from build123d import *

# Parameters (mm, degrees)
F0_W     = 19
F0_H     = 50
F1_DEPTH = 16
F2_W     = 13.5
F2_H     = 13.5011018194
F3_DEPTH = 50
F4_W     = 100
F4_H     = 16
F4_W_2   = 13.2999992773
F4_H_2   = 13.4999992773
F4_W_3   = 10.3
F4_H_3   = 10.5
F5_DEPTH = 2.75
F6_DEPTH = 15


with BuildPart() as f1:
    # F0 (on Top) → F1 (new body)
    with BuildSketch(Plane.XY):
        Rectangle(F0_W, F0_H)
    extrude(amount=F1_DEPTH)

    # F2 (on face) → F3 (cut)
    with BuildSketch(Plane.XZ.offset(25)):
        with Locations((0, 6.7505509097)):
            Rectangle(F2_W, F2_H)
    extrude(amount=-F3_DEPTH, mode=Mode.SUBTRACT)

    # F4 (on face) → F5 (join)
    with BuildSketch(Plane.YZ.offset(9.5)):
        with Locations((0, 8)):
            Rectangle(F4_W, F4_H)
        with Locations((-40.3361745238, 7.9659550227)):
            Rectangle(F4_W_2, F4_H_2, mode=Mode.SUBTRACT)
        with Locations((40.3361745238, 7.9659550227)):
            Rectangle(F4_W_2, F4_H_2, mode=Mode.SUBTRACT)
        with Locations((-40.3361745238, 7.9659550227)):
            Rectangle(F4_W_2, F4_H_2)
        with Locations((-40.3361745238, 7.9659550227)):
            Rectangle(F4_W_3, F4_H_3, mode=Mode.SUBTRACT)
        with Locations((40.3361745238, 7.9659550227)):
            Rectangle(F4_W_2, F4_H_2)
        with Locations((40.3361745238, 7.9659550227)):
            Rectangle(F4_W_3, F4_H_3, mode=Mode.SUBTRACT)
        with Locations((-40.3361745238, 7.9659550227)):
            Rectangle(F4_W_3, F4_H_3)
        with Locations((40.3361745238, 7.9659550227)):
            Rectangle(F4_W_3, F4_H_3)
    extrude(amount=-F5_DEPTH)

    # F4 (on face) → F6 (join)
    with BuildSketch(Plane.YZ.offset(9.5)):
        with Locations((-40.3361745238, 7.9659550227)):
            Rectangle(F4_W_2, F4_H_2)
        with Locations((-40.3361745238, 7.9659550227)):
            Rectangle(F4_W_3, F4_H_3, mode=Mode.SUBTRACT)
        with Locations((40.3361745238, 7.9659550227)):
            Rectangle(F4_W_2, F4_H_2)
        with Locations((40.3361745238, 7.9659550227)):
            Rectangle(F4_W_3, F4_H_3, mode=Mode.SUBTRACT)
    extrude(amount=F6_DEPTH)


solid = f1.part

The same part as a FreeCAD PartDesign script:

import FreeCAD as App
import Part
import Sketcher

V = App.Vector
Q = App.Units.Quantity


def add_polygon(sketch, points):
    """Adds a closed chain of lines whose ends are joined by coincident constraints."""
    first, n = sketch.GeometryCount, len(points)
    for a, b in zip(points, points[1:] + points[:1]):
        sketch.addGeometry(Part.LineSegment(App.Vector(*a, 0), App.Vector(*b, 0)), False)
    for i in range(n):
        sketch.addConstraint(Sketcher.Constraint("Coincident", first + i, 2, first + (i + 1) % n, 1))

doc = App.newDocument("Part")
body = doc.addObject("PartDesign::Body", "Body")

# Sketch on XY plane
sketch1 = body.newObject("Sketcher::SketchObject", "Sketch")
sketch1.AttachmentSupport = (doc.getObject("XY_Plane"), [""])
sketch1.MapMode = "FlatFace"
add_polygon(sketch1, [(-10, 25), (-10, -25), (10, -25), (10, 25)])  # lines 0-3
sketch1.addConstraint(Sketcher.Constraint("Vertical", 0))
sketch1.addConstraint(Sketcher.Constraint("Horizontal", 1))
sketch1.addConstraint(Sketcher.Constraint("Vertical", 2))
sketch1.addConstraint(Sketcher.Constraint("Horizontal", 3))
sketch1.addConstraint(Sketcher.Constraint("Symmetric", 0, 2, 2, 2, -1, 1))
sketch1.addConstraint(Sketcher.Constraint("DistanceX", 1, 1, 1, 2, Q("19 mm")))
sketch1.addConstraint(Sketcher.Constraint("DistanceY", 0, 2, 0, 1, Q("50 mm")))
pad1 = body.newObject("PartDesign::Pad", "Pad")
pad1.Profile = sketch1
pad1.Length = 16

# Sketch on XZ plane
sketch2 = body.newObject("Sketcher::SketchObject", "Sketch001")
sketch2.AttachmentSupport = (doc.getObject("XZ_Plane"), [""])
sketch2.MapMode = "FlatFace"
sketch2.AttachmentOffset = App.Placement(V(0, 0, 25), App.Rotation())
add_polygon(sketch2, [(-7, 14), (-7, 0), (7, 0), (7, 14)])  # lines 0-3
sketch2.addConstraint(Sketcher.Constraint("Vertical", 0))
sketch2.addConstraint(Sketcher.Constraint("Horizontal", 1))
sketch2.addConstraint(Sketcher.Constraint("Vertical", 2))
sketch2.addConstraint(Sketcher.Constraint("Horizontal", 3))
sketch2.addConstraint(Sketcher.Constraint("Symmetric", 0, 2, 1, 2, -1, 1))
sketch2.addConstraint(Sketcher.Constraint("DistanceX", 1, 1, 1, 2, Q("13.5 mm")))
sketch2.addConstraint(Sketcher.Constraint("DistanceY", 0, 2, 0, 1, Q("13.501102 mm")))
pocket1 = body.newObject("PartDesign::Pocket", "Pocket")
pocket1.Profile = sketch2
pocket1.Length = 50

# Sketch on YZ plane
sketch3 = body.newObject("Sketcher::SketchObject", "Sketch002")
sketch3.AttachmentSupport = (doc.getObject("YZ_Plane"), [""])
sketch3.MapMode = "FlatFace"
sketch3.AttachmentOffset = App.Placement(V(0, 0, 9.5), App.Rotation())
add_polygon(sketch3, [(-50, 16), (-50, 0), (50, 0), (50, 16)])  # lines 0-3
sketch3.addConstraint(Sketcher.Constraint("Vertical", 0))
sketch3.addConstraint(Sketcher.Constraint("Horizontal", 1))
sketch3.addConstraint(Sketcher.Constraint("Vertical", 2))
sketch3.addConstraint(Sketcher.Constraint("Horizontal", 3))
sketch3.addConstraint(Sketcher.Constraint("Symmetric", 0, 2, 1, 2, -1, 1))
sketch3.addConstraint(Sketcher.Constraint("DistanceX", 1, 1, 1, 2, Q("100 mm")))
sketch3.addConstraint(Sketcher.Constraint("DistanceY", 0, 2, 0, 1, Q("16 mm")))
pad2 = body.newObject("PartDesign::Pad", "Pad001")
pad2.Profile = sketch3
pad2.Length = 2.75
pad2.Reversed = True

# Sketch on YZ plane
sketch4 = body.newObject("Sketcher::SketchObject", "Sketch003")
sketch4.AttachmentSupport = (doc.getObject("YZ_Plane"), [""])
sketch4.MapMode = "FlatFace"
sketch4.AttachmentOffset = App.Placement(V(0, 0, 9.5), App.Rotation())
add_polygon(sketch4, [(-47, 15), (-47, 1), (-34, 1), (-34, 15)])  # lines 0-3
add_polygon(sketch4, [(-35, 3), (-45, 3), (-45, 13), (-35, 13)])  # lines 4-7
add_polygon(sketch4, [(34, 15), (34, 1), (47, 1), (47, 15)])  # lines 8-11
add_polygon(sketch4, [(45, 3), (35, 3), (35, 13), (45, 13)])  # lines 12-15
sketch4.addConstraint(Sketcher.Constraint("Vertical", 0))
sketch4.addConstraint(Sketcher.Constraint("Horizontal", 1))
sketch4.addConstraint(Sketcher.Constraint("Vertical", 2))
sketch4.addConstraint(Sketcher.Constraint("Horizontal", 3))
sketch4.addConstraint(Sketcher.Constraint("Horizontal", 4))
sketch4.addConstraint(Sketcher.Constraint("Vertical", 5))
sketch4.addConstraint(Sketcher.Constraint("Horizontal", 6))
sketch4.addConstraint(Sketcher.Constraint("Vertical", 7))
sketch4.addConstraint(Sketcher.Constraint("Vertical", 8))
sketch4.addConstraint(Sketcher.Constraint("Horizontal", 9))
sketch4.addConstraint(Sketcher.Constraint("Vertical", 10))
sketch4.addConstraint(Sketcher.Constraint("Horizontal", 11))
sketch4.addConstraint(Sketcher.Constraint("Horizontal", 12))
sketch4.addConstraint(Sketcher.Constraint("Vertical", 13))
sketch4.addConstraint(Sketcher.Constraint("Horizontal", 14))
sketch4.addConstraint(Sketcher.Constraint("Vertical", 15))
sketch4.addConstraint(Sketcher.Constraint("Symmetric", 1, 2, 8, 2, -2))
sketch4.addConstraint(Sketcher.Constraint("Symmetric", 3, 2, 10, 2, -2))
sketch4.addConstraint(Sketcher.Constraint("Symmetric", 7, 2, 12, 2, -2))
sketch4.addConstraint(Sketcher.Constraint("Symmetric", 5, 2, 14, 2, -2))
sketch4.addConstraint(Sketcher.Constraint("DistanceX", 1, 1, 1, 2, Q("13.299999 mm")))
sketch4.addConstraint(Sketcher.Constraint("DistanceX", 4, 2, 4, 1, Q("10.3 mm")))
sketch4.addConstraint(Sketcher.Constraint("DistanceY", 0, 2, 0, 1, Q("13.499999 mm")))
sketch4.addConstraint(Sketcher.Constraint("DistanceY", 5, 1, 5, 2, Q("10.5 mm")))
sketch4.addConstraint(Sketcher.Constraint("DistanceY", 4, 2, 3, 2, Q("12 mm")))
sketch4.addConstraint(Sketcher.Constraint("DistanceX", 0, 2, 4, 2, Q("1.5 mm")))
sketch4.addConstraint(Sketcher.Constraint("DistanceX", 1, 2, 8, 2, Q("67.37235 mm")))
sketch4.addConstraint(Sketcher.Constraint("DistanceY", -1, 1, 0, 2, Q("1.215955 mm")))
pad3 = body.newObject("PartDesign::Pad", "Pad002")
pad3.Profile = sketch4
pad3.Length = 15

doc.recompute()
